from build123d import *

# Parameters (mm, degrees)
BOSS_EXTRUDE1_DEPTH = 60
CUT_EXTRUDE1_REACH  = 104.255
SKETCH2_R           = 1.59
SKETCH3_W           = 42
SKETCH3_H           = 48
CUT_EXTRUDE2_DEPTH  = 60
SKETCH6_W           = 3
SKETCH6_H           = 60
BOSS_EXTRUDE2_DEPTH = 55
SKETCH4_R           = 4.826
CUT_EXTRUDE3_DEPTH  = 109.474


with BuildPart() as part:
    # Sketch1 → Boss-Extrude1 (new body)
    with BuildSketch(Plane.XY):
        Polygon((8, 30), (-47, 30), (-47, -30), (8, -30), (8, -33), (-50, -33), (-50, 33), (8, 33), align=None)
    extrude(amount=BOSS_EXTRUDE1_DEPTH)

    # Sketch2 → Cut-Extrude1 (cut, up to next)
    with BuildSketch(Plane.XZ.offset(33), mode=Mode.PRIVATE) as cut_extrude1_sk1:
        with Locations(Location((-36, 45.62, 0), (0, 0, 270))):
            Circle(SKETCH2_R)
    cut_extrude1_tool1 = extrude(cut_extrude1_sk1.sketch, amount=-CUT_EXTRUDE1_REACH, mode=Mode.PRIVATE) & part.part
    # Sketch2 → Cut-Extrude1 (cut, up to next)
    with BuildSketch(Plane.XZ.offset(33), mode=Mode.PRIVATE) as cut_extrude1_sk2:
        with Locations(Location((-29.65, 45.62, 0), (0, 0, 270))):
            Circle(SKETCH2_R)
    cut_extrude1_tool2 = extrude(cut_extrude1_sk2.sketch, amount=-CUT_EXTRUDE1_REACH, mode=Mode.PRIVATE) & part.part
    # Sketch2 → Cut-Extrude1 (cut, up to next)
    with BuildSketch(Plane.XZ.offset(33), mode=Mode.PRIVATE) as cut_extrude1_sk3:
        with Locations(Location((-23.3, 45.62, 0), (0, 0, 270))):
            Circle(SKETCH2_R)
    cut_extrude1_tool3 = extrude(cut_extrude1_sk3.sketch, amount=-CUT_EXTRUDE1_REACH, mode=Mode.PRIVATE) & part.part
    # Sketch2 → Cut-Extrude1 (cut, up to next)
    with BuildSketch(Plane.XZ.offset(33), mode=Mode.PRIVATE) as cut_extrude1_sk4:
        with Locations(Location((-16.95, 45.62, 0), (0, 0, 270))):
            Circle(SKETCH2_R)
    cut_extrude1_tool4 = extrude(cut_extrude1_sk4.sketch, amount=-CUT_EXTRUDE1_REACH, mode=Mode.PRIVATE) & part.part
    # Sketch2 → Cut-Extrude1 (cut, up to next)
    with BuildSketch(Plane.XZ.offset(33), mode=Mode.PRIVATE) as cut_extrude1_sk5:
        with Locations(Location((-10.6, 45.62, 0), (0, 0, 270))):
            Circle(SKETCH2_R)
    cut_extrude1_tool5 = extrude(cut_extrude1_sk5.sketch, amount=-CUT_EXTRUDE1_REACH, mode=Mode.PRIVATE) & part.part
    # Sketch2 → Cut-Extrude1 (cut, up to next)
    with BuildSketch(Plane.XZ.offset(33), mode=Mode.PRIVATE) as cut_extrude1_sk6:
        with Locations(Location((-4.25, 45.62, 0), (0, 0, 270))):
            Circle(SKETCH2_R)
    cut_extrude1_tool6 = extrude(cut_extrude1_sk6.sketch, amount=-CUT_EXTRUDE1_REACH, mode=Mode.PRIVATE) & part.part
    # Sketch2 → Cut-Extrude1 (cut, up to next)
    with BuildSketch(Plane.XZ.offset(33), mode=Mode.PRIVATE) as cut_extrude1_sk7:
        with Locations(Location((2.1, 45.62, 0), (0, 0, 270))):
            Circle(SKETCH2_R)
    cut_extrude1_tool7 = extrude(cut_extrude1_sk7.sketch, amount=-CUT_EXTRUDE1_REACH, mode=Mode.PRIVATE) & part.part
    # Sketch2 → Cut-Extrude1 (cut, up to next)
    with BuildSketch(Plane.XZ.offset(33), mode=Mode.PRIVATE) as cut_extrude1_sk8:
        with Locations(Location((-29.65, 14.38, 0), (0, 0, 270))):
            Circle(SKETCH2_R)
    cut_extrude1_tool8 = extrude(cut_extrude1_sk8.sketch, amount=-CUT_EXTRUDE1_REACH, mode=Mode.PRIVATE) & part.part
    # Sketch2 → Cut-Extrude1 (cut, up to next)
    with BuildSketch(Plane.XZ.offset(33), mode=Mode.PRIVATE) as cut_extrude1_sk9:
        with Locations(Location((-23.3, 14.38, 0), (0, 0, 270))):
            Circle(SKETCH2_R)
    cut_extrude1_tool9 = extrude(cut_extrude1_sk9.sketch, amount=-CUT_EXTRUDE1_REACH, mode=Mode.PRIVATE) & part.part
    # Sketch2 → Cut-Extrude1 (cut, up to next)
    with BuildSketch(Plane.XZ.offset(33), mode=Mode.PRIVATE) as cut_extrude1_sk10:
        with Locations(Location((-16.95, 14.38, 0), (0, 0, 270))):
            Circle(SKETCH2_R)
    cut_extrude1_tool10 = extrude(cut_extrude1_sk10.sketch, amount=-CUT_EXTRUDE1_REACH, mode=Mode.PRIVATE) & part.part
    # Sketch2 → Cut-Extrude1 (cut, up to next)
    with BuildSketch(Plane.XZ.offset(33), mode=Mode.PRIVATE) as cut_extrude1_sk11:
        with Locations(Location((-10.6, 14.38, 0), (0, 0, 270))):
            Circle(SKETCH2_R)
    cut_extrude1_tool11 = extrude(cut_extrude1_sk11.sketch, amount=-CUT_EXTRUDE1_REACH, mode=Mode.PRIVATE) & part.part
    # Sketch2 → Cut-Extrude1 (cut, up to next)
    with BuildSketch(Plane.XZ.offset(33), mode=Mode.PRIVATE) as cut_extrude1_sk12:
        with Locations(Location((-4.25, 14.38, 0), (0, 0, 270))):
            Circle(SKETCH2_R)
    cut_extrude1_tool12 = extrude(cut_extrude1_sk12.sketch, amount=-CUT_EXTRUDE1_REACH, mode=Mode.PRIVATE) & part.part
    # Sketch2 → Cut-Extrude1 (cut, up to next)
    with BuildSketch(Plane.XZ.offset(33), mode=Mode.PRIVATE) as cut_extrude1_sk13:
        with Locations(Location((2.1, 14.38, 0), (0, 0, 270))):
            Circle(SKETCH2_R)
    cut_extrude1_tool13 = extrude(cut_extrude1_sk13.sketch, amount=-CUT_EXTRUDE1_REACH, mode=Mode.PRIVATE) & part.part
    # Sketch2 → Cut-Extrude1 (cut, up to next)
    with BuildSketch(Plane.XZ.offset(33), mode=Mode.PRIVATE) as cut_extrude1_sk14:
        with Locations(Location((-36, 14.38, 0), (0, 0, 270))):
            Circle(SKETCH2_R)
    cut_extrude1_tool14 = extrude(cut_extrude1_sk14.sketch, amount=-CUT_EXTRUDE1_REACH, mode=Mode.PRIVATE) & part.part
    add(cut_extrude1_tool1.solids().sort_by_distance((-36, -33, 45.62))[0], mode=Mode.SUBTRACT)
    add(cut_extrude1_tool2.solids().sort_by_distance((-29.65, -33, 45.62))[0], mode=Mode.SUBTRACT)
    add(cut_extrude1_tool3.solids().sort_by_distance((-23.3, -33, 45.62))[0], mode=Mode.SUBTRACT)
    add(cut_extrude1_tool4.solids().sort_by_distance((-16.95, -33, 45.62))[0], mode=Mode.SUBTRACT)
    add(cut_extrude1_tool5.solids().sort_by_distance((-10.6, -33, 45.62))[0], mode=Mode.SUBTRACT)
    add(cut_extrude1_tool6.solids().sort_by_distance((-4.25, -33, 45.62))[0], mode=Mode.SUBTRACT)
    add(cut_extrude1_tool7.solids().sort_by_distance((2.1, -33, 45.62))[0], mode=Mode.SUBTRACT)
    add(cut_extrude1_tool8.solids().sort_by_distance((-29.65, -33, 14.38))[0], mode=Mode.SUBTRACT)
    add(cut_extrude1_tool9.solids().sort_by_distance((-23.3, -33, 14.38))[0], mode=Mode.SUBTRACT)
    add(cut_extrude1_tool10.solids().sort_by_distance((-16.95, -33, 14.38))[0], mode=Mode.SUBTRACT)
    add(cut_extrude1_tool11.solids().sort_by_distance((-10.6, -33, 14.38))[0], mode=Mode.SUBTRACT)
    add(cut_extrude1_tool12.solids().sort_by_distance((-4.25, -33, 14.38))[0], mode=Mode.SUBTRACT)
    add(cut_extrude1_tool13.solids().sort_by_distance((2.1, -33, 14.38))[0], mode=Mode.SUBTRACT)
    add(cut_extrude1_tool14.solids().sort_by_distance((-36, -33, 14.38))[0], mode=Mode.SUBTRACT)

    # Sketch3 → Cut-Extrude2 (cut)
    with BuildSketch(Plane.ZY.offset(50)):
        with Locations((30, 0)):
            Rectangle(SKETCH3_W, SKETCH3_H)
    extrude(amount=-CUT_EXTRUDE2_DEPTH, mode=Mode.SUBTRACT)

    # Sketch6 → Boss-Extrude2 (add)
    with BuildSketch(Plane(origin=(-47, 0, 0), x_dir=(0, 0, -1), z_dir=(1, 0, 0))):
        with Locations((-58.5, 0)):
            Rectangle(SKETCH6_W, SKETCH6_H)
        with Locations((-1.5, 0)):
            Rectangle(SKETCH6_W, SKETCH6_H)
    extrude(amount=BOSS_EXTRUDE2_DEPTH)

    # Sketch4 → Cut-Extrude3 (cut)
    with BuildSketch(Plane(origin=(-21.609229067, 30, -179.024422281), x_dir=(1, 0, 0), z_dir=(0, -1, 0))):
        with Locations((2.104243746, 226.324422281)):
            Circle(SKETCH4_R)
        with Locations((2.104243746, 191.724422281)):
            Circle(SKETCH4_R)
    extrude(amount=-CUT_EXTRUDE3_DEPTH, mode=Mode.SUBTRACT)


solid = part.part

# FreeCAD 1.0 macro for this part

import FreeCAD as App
import Part
import Sketcher

doc = App.newDocument("Part")
body = doc.addObject("PartDesign::Body", "Body")

sketch1 = doc.addObject("Sketcher::SketchObject", "Sketch")
body.addObject(sketch1)
sketch1.AttachmentSupport = (doc.XY_Plane, [""])
sketch1.MapMode = "FlatFace"
sketch1.addGeometry(Part.LineSegment(App.Vector(-47, 30, 0), App.Vector(8, 30, 0)), False)
sketch1.addGeometry(Part.LineSegment(App.Vector(8, 30, 0), App.Vector(8, 33, 0)), False)
sketch1.addGeometry(Part.LineSegment(App.Vector(8, 33, 0), App.Vector(-50, 33, 0)), False)
sketch1.addGeometry(Part.LineSegment(App.Vector(-50, 33, 0), App.Vector(-50, -33, 0)), False)
sketch1.addGeometry(Part.LineSegment(App.Vector(-50, -33, 0), App.Vector(8, -33, 0)), False)
sketch1.addGeometry(Part.LineSegment(App.Vector(8, -33, 0), App.Vector(8, -30, 0)), False)
sketch1.addGeometry(Part.LineSegment(App.Vector(8, -30, 0), App.Vector(-47, -30, 0)), False)
sketch1.addGeometry(Part.LineSegment(App.Vector(-47, -30, 0), App.Vector(-47, 30, 0)), False)
sketch1.addConstraint(Sketcher.Constraint("Coincident", 0, 2, 1, 1))
sketch1.addConstraint(Sketcher.Constraint("Coincident", 1, 2, 2, 1))
sketch1.addConstraint(Sketcher.Constraint("Coincident", 2, 2, 3, 1))
sketch1.addConstraint(Sketcher.Constraint("Coincident", 3, 2, 4, 1))
sketch1.addConstraint(Sketcher.Constraint("Coincident", 4, 2, 5, 1))
sketch1.addConstraint(Sketcher.Constraint("Coincident", 5, 2, 6, 1))
sketch1.addConstraint(Sketcher.Constraint("Coincident", 6, 2, 7, 1))
sketch1.addConstraint(Sketcher.Constraint("Coincident", 7, 2, 0, 1))
sketch1.addConstraint(Sketcher.Constraint("Horizontal", 0))
sketch1.addConstraint(Sketcher.Constraint("Vertical", 1))
sketch1.addConstraint(Sketcher.Constraint("Horizontal", 2))
sketch1.addConstraint(Sketcher.Constraint("Vertical", 3))
sketch1.addConstraint(Sketcher.Constraint("Horizontal", 4))
sketch1.addConstraint(Sketcher.Constraint("Vertical", 5))
sketch1.addConstraint(Sketcher.Constraint("Horizontal", 6))
sketch1.addConstraint(Sketcher.Constraint("Vertical", 7))
sketch1.addConstraint(Sketcher.Constraint("Symmetric", 1, 2, 4, 2, -1))
sketch1.addConstraint(Sketcher.Constraint("Equal", 1, 5))
sketch1.addConstraint(Sketcher.Constraint("DistanceX", 0, 1, 0, 2, 55.0))
sketch1.addConstraint(Sketcher.Constraint("DistanceX", 2, 2, 2, 1, 58.0))
sketch1.addConstraint(Sketcher.Constraint("DistanceY", 1, 1, 1, 2, 3.0))
sketch1.addConstraint(Sketcher.Constraint("DistanceY", 3, 2, 3, 1, 66.0))
sketch1.addConstraint(Sketcher.Constraint("DistanceX", -1, 1, 0, 2, 8.0))
pad1 = doc.addObject("PartDesign::Pad", "Pad")
body.addObject(pad1)
pad1.Profile = sketch1
pad1.Length = 60

sketch2 = doc.addObject("Sketcher::SketchObject", "Sketch001")
body.addObject(sketch2)
sketch2.AttachmentSupport = (doc.XZ_Plane, [""])
sketch2.MapMode = "FlatFace"
sketch2.AttachmentOffset = App.Placement(App.Vector(0, 0, 33), App.Rotation())
sketch2.addGeometry(Part.Circle(App.Vector(-36, 45.6, 0), App.Vector(0, 0, 1), 1.6), False)
sketch2.addConstraint(Sketcher.Constraint("Diameter", 0, 3.18))
sketch2.addConstraint(Sketcher.Constraint("DistanceX", 0, 3, -1, 1, 36.0))
sketch2.addConstraint(Sketcher.Constraint("DistanceY", -1, 1, 0, 3, 45.62))
pocket1 = doc.addObject("PartDesign::Pocket", "Pocket")
body.addObject(pocket1)
pocket1.Profile = sketch2
pocket1.Type = "UpToFirst"

sketch3 = doc.addObject("Sketcher::SketchObject", "Sketch002")
body.addObject(sketch3)
sketch3.AttachmentSupport = (doc.XZ_Plane, [""])
sketch3.MapMode = "FlatFace"
sketch3.AttachmentOffset = App.Placement(App.Vector(0, 0, 33), App.Rotation())
sketch3.addGeometry(Part.Circle(App.Vector(-29.6, 45.6, 0), App.Vector(0, 0, 1), 1.6), False)
sketch3.addConstraint(Sketcher.Constraint("Diameter", 0, 3.18))
sketch3.addConstraint(Sketcher.Constraint("DistanceX", 0, 3, -1, 1, 29.65))
sketch3.addConstraint(Sketcher.Constraint("DistanceY", -1, 1, 0, 3, 45.62))
pocket2 = doc.addObject("PartDesign::Pocket", "Pocket001")
body.addObject(pocket2)
pocket2.Profile = sketch3
pocket2.Type = "UpToFirst"

sketch4 = doc.addObject("Sketcher::SketchObject", "Sketch003")
body.addObject(sketch4)
sketch4.AttachmentSupport = (doc.XZ_Plane, [""])
sketch4.MapMode = "FlatFace"
sketch4.AttachmentOffset = App.Placement(App.Vector(0, 0, 33), App.Rotation())
sketch4.addGeometry(Part.Circle(App.Vector(-23.3, 45.6, 0), App.Vector(0, 0, 1), 1.6), False)
sketch4.addConstraint(Sketcher.Constraint("Diameter", 0, 3.18))
sketch4.addConstraint(Sketcher.Constraint("DistanceX", 0, 3, -1, 1, 23.3))
sketch4.addConstraint(Sketcher.Constraint("DistanceY", -1, 1, 0, 3, 45.62))
pocket3 = doc.addObject("PartDesign::Pocket", "Pocket002")
body.addObject(pocket3)
pocket3.Profile = sketch4
pocket3.Type = "UpToFirst"

sketch5 = doc.addObject("Sketcher::SketchObject", "Sketch004")
body.addObject(sketch5)
sketch5.AttachmentSupport = (doc.XZ_Plane, [""])
sketch5.MapMode = "FlatFace"
sketch5.AttachmentOffset = App.Placement(App.Vector(0, 0, 33), App.Rotation())
sketch5.addGeometry(Part.Circle(App.Vector(-16.9, 45.6, 0), App.Vector(0, 0, 1), 1.6), False)
sketch5.addConstraint(Sketcher.Constraint("Diameter", 0, 3.18))
sketch5.addConstraint(Sketcher.Constraint("DistanceX", 0, 3, -1, 1, 16.95))
sketch5.addConstraint(Sketcher.Constraint("DistanceY", -1, 1, 0, 3, 45.62))
pocket4 = doc.addObject("PartDesign::Pocket", "Pocket003")
body.addObject(pocket4)
pocket4.Profile = sketch5
pocket4.Type = "UpToFirst"

sketch6 = doc.addObject("Sketcher::SketchObject", "Sketch005")
body.addObject(sketch6)
sketch6.AttachmentSupport = (doc.XZ_Plane, [""])
sketch6.MapMode = "FlatFace"
sketch6.AttachmentOffset = App.Placement(App.Vector(0, 0, 33), App.Rotation())
sketch6.addGeometry(Part.Circle(App.Vector(-10.6, 45.6, 0), App.Vector(0, 0, 1), 1.6), False)
sketch6.addConstraint(Sketcher.Constraint("Diameter", 0, 3.18))
sketch6.addConstraint(Sketcher.Constraint("DistanceX", 0, 3, -1, 1, 10.6))
sketch6.addConstraint(Sketcher.Constraint("DistanceY", -1, 1, 0, 3, 45.62))
pocket5 = doc.addObject("PartDesign::Pocket", "Pocket004")
body.addObject(pocket5)
pocket5.Profile = sketch6
pocket5.Type = "UpToFirst"

sketch7 = doc.addObject("Sketcher::SketchObject", "Sketch006")
body.addObject(sketch7)
sketch7.AttachmentSupport = (doc.XZ_Plane, [""])
sketch7.MapMode = "FlatFace"
sketch7.AttachmentOffset = App.Placement(App.Vector(0, 0, 33), App.Rotation())
sketch7.addGeometry(Part.Circle(App.Vector(-4.2, 45.6, 0), App.Vector(0, 0, 1), 1.6), False)
sketch7.addConstraint(Sketcher.Constraint("Diameter", 0, 3.18))
sketch7.addConstraint(Sketcher.Constraint("DistanceX", 0, 3, -1, 1, 4.25))
sketch7.addConstraint(Sketcher.Constraint("DistanceY", -1, 1, 0, 3, 45.62))
pocket6 = doc.addObject("PartDesign::Pocket", "Pocket005")
body.addObject(pocket6)
pocket6.Profile = sketch7
pocket6.Type = "UpToFirst"

sketch8 = doc.addObject("Sketcher::SketchObject", "Sketch007")
body.addObject(sketch8)
sketch8.AttachmentSupport = (doc.XZ_Plane, [""])
sketch8.MapMode = "FlatFace"
sketch8.AttachmentOffset = App.Placement(App.Vector(0, 0, 33), App.Rotation())
sketch8.addGeometry(Part.Circle(App.Vector(2.1, 45.6, 0), App.Vector(0, 0, 1), 1.6), False)
sketch8.addConstraint(Sketcher.Constraint("Diameter", 0, 3.18))
sketch8.addConstraint(Sketcher.Constraint("DistanceX", -1, 1, 0, 3, 2.1))
sketch8.addConstraint(Sketcher.Constraint("DistanceY", -1, 1, 0, 3, 45.62))
pocket7 = doc.addObject("PartDesign::Pocket", "Pocket006")
body.addObject(pocket7)
pocket7.Profile = sketch8
pocket7.Type = "UpToFirst"

sketch9 = doc.addObject("Sketcher::SketchObject", "Sketch008")
body.addObject(sketch9)
sketch9.AttachmentSupport = (doc.XZ_Plane, [""])
sketch9.MapMode = "FlatFace"
sketch9.AttachmentOffset = App.Placement(App.Vector(0, 0, 33), App.Rotation())
sketch9.addGeometry(Part.Circle(App.Vector(-29.6, 14.4, 0), App.Vector(0, 0, 1), 1.6), False)
sketch9.addConstraint(Sketcher.Constraint("Diameter", 0, 3.18))
sketch9.addConstraint(Sketcher.Constraint("DistanceX", 0, 3, -1, 1, 29.65))
sketch9.addConstraint(Sketcher.Constraint("DistanceY", -1, 1, 0, 3, 14.38))
pocket8 = doc.addObject("PartDesign::Pocket", "Pocket007")
body.addObject(pocket8)
pocket8.Profile = sketch9
pocket8.Type = "UpToFirst"

sketch10 = doc.addObject("Sketcher::SketchObject", "Sketch009")
body.addObject(sketch10)
sketch10.AttachmentSupport = (doc.XZ_Plane, [""])
sketch10.MapMode = "FlatFace"
sketch10.AttachmentOffset = App.Placement(App.Vector(0, 0, 33), App.Rotation())
sketch10.addGeometry(Part.Circle(App.Vector(-23.3, 14.4, 0), App.Vector(0, 0, 1), 1.6), False)
sketch10.addConstraint(Sketcher.Constraint("Diameter", 0, 3.18))
sketch10.addConstraint(Sketcher.Constraint("DistanceX", 0, 3, -1, 1, 23.3))
sketch10.addConstraint(Sketcher.Constraint("DistanceY", -1, 1, 0, 3, 14.38))
pocket9 = doc.addObject("PartDesign::Pocket", "Pocket008")
body.addObject(pocket9)
pocket9.Profile = sketch10
pocket9.Type = "UpToFirst"

sketch11 = doc.addObject("Sketcher::SketchObject", "Sketch010")
body.addObject(sketch11)
sketch11.AttachmentSupport = (doc.XZ_Plane, [""])
sketch11.MapMode = "FlatFace"
sketch11.AttachmentOffset = App.Placement(App.Vector(0, 0, 33), App.Rotation())
sketch11.addGeometry(Part.Circle(App.Vector(-16.9, 14.4, 0), App.Vector(0, 0, 1), 1.6), False)
sketch11.addConstraint(Sketcher.Constraint("Diameter", 0, 3.18))
sketch11.addConstraint(Sketcher.Constraint("DistanceX", 0, 3, -1, 1, 16.95))
sketch11.addConstraint(Sketcher.Constraint("DistanceY", -1, 1, 0, 3, 14.38))
pocket10 = doc.addObject("PartDesign::Pocket", "Pocket009")
body.addObject(pocket10)
pocket10.Profile = sketch11
pocket10.Type = "UpToFirst"

sketch12 = doc.addObject("Sketcher::SketchObject", "Sketch011")
body.addObject(sketch12)
sketch12.AttachmentSupport = (doc.XZ_Plane, [""])
sketch12.MapMode = "FlatFace"
sketch12.AttachmentOffset = App.Placement(App.Vector(0, 0, 33), App.Rotation())
sketch12.addGeometry(Part.Circle(App.Vector(-10.6, 14.4, 0), App.Vector(0, 0, 1), 1.6), False)
sketch12.addConstraint(Sketcher.Constraint("Diameter", 0, 3.18))
sketch12.addConstraint(Sketcher.Constraint("DistanceX", 0, 3, -1, 1, 10.6))
sketch12.addConstraint(Sketcher.Constraint("DistanceY", -1, 1, 0, 3, 14.38))
pocket11 = doc.addObject("PartDesign::Pocket", "Pocket010")
body.addObject(pocket11)
pocket11.Profile = sketch12
pocket11.Type = "UpToFirst"

sketch13 = doc.addObject("Sketcher::SketchObject", "Sketch012")
body.addObject(sketch13)
sketch13.AttachmentSupport = (doc.XZ_Plane, [""])
sketch13.MapMode = "FlatFace"
sketch13.AttachmentOffset = App.Placement(App.Vector(0, 0, 33), App.Rotation())
sketch13.addGeometry(Part.Circle(App.Vector(-4.2, 14.4, 0), App.Vector(0, 0, 1), 1.6), False)
sketch13.addConstraint(Sketcher.Constraint("Diameter", 0, 3.18))
sketch13.addConstraint(Sketcher.Constraint("DistanceX", 0, 3, -1, 1, 4.25))
sketch13.addConstraint(Sketcher.Constraint("DistanceY", -1, 1, 0, 3, 14.38))
pocket12 = doc.addObject("PartDesign::Pocket", "Pocket011")
body.addObject(pocket12)
pocket12.Profile = sketch13
pocket12.Type = "UpToFirst"

sketch14 = doc.addObject("Sketcher::SketchObject", "Sketch013")
body.addObject(sketch14)
sketch14.AttachmentSupport = (doc.XZ_Plane, [""])
sketch14.MapMode = "FlatFace"
sketch14.AttachmentOffset = App.Placement(App.Vector(0, 0, 33), App.Rotation())
sketch14.addGeometry(Part.Circle(App.Vector(2.1, 14.4, 0), App.Vector(0, 0, 1), 1.6), False)
sketch14.addConstraint(Sketcher.Constraint("Diameter", 0, 3.18))
sketch14.addConstraint(Sketcher.Constraint("DistanceX", -1, 1, 0, 3, 2.1))
sketch14.addConstraint(Sketcher.Constraint("DistanceY", -1, 1, 0, 3, 14.38))
pocket13 = doc.addObject("PartDesign::Pocket", "Pocket012")
body.addObject(pocket13)
pocket13.Profile = sketch14
pocket13.Type = "UpToFirst"

sketch15 = doc.addObject("Sketcher::SketchObject", "Sketch014")
body.addObject(sketch15)
sketch15.AttachmentSupport = (doc.XZ_Plane, [""])
sketch15.MapMode = "FlatFace"
sketch15.AttachmentOffset = App.Placement(App.Vector(0, 0, 33), App.Rotation())
sketch15.addGeometry(Part.Circle(App.Vector(-36, 14.4, 0), App.Vector(0, 0, 1), 1.6), False)
sketch15.addConstraint(Sketcher.Constraint("Diameter", 0, 3.18))
sketch15.addConstraint(Sketcher.Constraint("DistanceX", 0, 3, -1, 1, 36.0))
sketch15.addConstraint(Sketcher.Constraint("DistanceY", -1, 1, 0, 3, 14.38))
pocket14 = doc.addObject("PartDesign::Pocket", "Pocket013")
body.addObject(pocket14)
pocket14.Profile = sketch15
pocket14.Type = "UpToFirst"

sketch16 = doc.addObject("Sketcher::SketchObject", "Sketch015")
body.addObject(sketch16)
sketch16.AttachmentSupport = (doc.YZ_Plane, [""])
sketch16.MapMode = "FlatFace"
sketch16.AttachmentOffset = App.Placement(App.Vector(0, 0, -50), App.Rotation())
sketch16.addGeometry(Part.LineSegment(App.Vector(24, 9, 0), App.Vector(-24, 9, 0)), False)
sketch16.addGeometry(Part.LineSegment(App.Vector(-24, 9, 0), App.Vector(-24, 51, 0)), False)
sketch16.addGeometry(Part.LineSegment(App.Vector(-24, 51, 0), App.Vector(24, 51, 0)), False)
sketch16.addGeometry(Part.LineSegment(App.Vector(24, 51, 0), App.Vector(24, 9, 0)), False)
sketch16.addConstraint(Sketcher.Constraint("Coincident", 0, 2, 1, 1))
sketch16.addConstraint(Sketcher.Constraint("Coincident", 1, 2, 2, 1))
sketch16.addConstraint(Sketcher.Constraint("Coincident", 2, 2, 3, 1))
sketch16.addConstraint(Sketcher.Constraint("Coincident", 3, 2, 0, 1))
sketch16.addConstraint(Sketcher.Constraint("Horizontal", 0))
sketch16.addConstraint(Sketcher.Constraint("Vertical", 1))
sketch16.addConstraint(Sketcher.Constraint("Horizontal", 2))
sketch16.addConstraint(Sketcher.Constraint("Vertical", 3))
sketch16.addConstraint(Sketcher.Constraint("DistanceX", 0, 2, 0, 1, 48.0))
sketch16.addConstraint(Sketcher.Constraint("DistanceY", 1, 1, 1, 2, 42.0))
sketch16.addConstraint(Sketcher.Constraint("DistanceX", 0, 2, -1, 1, 24.0))
sketch16.addConstraint(Sketcher.Constraint("DistanceY", -1, 1, 0, 2, 9.0))
pocket15 = doc.addObject("PartDesign::Pocket", "Pocket014")
body.addObject(pocket15)
pocket15.Profile = sketch16
pocket15.Length = 60
pocket15.Reversed = True

sketch17 = doc.addObject("Sketcher::SketchObject", "Sketch016")
body.addObject(sketch17)
sketch17.AttachmentSupport = (doc.YZ_Plane, [""])
sketch17.MapMode = "FlatFace"
sketch17.AttachmentOffset = App.Placement(App.Vector(0, 0, -47), App.Rotation())
sketch17.addGeometry(Part.LineSegment(App.Vector(30, 60, 0), App.Vector(-30, 60, 0)), False)
sketch17.addGeometry(Part.LineSegment(App.Vector(-30, 60, 0), App.Vector(-30, 57, 0)), False)
sketch17.addGeometry(Part.LineSegment(App.Vector(-30, 57, 0), App.Vector(30, 57, 0)), False)
sketch17.addGeometry(Part.LineSegment(App.Vector(30, 57, 0), App.Vector(30, 60, 0)), False)
sketch17.addGeometry(Part.LineSegment(App.Vector(30, 3, 0), App.Vector(-30, 3, 0)), False)
sketch17.addGeometry(Part.LineSegment(App.Vector(-30, 3, 0), App.Vector(-30, 0, 0)), False)
sketch17.addGeometry(Part.LineSegment(App.Vector(-30, 0, 0), App.Vector(30, 0, 0)), False)
sketch17.addGeometry(Part.LineSegment(App.Vector(30, 0, 0), App.Vector(30, 3, 0)), False)
sketch17.addConstraint(Sketcher.Constraint("Coincident", 0, 2, 1, 1))
sketch17.addConstraint(Sketcher.Constraint("Coincident", 1, 2, 2, 1))
sketch17.addConstraint(Sketcher.Constraint("Coincident", 2, 2, 3, 1))
sketch17.addConstraint(Sketcher.Constraint("Coincident", 3, 2, 0, 1))
sketch17.addConstraint(Sketcher.Constraint("Coincident", 4, 2, 5, 1))
sketch17.addConstraint(Sketcher.Constraint("Coincident", 5, 2, 6, 1))
sketch17.addConstraint(Sketcher.Constraint("Coincident", 6, 2, 7, 1))
sketch17.addConstraint(Sketcher.Constraint("Coincident", 7, 2, 4, 1))
sketch17.addConstraint(Sketcher.Constraint("Horizontal", 0))
sketch17.addConstraint(Sketcher.Constraint("Vertical", 1))
sketch17.addConstraint(Sketcher.Constraint("Horizontal", 2))
sketch17.addConstraint(Sketcher.Constraint("Vertical", 3))
sketch17.addConstraint(Sketcher.Constraint("Horizontal", 4))
sketch17.addConstraint(Sketcher.Constraint("Vertical", 5))
sketch17.addConstraint(Sketcher.Constraint("Horizontal", 6))
sketch17.addConstraint(Sketcher.Constraint("Vertical", 7))
sketch17.addConstraint(Sketcher.Constraint("Symmetric", 5, 2, 6, 2, -1, 1))
sketch17.addConstraint(Sketcher.Constraint("Vertical", 1, 2, 4, 2))
sketch17.addConstraint(Sketcher.Constraint("Vertical", 3, 2, 6, 2))
sketch17.addConstraint(Sketcher.Constraint("Equal", 3, 5))
sketch17.addConstraint(Sketcher.Constraint("DistanceX", 0, 2, 0, 1, 60.0))
sketch17.addConstraint(Sketcher.Constraint("DistanceY", 1, 2, 1, 1, 3.0))
sketch17.addConstraint(Sketcher.Constraint("DistanceY", -1, 1, 0, 2, 60.0))
pad2 = doc.addObject("PartDesign::Pad", "Pad001")
body.addObject(pad2)
pad2.Profile = sketch17
pad2.Length = 55

sketch18 = doc.addObject("Sketcher::SketchObject", "Sketch017")
body.addObject(sketch18)
sketch18.AttachmentSupport = (doc.XZ_Plane, [""])
sketch18.MapMode = "FlatFace"
sketch18.AttachmentOffset = App.Placement(App.Vector(0, 0, -30), App.Rotation())
sketch18.addGeometry(Part.Circle(App.Vector(-19.5, 47.3, 0), App.Vector(0, 0, 1), 4.8), False)
sketch18.addGeometry(Part.Circle(App.Vector(-19.5, 12.7, 0), App.Vector(0, 0, 1), 4.8), False)
sketch18.addConstraint(Sketcher.Constraint("Equal", 0, 1))
sketch18.addConstraint(Sketcher.Constraint("Vertical", 0, 3, 1, 3))
sketch18.addConstraint(Sketcher.Constraint("Diameter", 0, 9.652))
sketch18.addConstraint(Sketcher.Constraint("DistanceY", -1, 1, 0, 3, 47.3))
sketch18.addConstraint(Sketcher.Constraint("DistanceY", -1, 1, 1, 3, 12.7))
sketch18.addConstraint(Sketcher.Constraint("DistanceX", 0, 3, -1, 1, 19.504985))
pocket16 = doc.addObject("PartDesign::Pocket", "Pocket015")
body.addObject(pocket16)
pocket16.Profile = sketch18
pocket16.Length = 109.474

doc.recompute()
